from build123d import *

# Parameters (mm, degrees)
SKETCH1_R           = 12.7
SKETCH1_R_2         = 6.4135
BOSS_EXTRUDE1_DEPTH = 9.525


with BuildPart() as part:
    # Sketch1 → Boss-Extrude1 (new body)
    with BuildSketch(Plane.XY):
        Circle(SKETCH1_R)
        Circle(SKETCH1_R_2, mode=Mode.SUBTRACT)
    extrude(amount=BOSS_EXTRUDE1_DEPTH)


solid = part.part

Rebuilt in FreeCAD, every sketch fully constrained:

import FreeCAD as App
import Part
import Sketcher
Q = App.Units.Quantity

doc = App.newDocument("Part")
body = doc.addObject("PartDesign::Body", "Body")

# Sketch on XY plane
sketch1 = doc.addObject("Sketcher::SketchObject", "Sketch")
body.addObject(sketch1)
sketch1.AttachmentSupport = (doc.XY_Plane, [""])
sketch1.MapMode = "FlatFace"
sketch1.addGeometry([
    Part.Circle(App.Vector(0, 0, 0), App.Vector(0, 0, 1), 13),
    Part.Circle(App.Vector(0, 0, 0), App.Vector(0, 0, 1), 6),
], False)
sketch1.addConstraint([
    Sketcher.Constraint("Coincident", 0, 3, -1, 1),
    Sketcher.Constraint("Coincident", 1, 3, -1, 1),
    Sketcher.Constraint("Diameter", 0, Q("1 in")),
    Sketcher.Constraint("Diameter", 1, Q("0.505 in")),
])
pad1 = doc.addObject("PartDesign::Pad", "Pad")
body.addObject(pad1)
pad1.Profile = sketch1
pad1.Length = Q("0.375 in")

doc.recompute()
